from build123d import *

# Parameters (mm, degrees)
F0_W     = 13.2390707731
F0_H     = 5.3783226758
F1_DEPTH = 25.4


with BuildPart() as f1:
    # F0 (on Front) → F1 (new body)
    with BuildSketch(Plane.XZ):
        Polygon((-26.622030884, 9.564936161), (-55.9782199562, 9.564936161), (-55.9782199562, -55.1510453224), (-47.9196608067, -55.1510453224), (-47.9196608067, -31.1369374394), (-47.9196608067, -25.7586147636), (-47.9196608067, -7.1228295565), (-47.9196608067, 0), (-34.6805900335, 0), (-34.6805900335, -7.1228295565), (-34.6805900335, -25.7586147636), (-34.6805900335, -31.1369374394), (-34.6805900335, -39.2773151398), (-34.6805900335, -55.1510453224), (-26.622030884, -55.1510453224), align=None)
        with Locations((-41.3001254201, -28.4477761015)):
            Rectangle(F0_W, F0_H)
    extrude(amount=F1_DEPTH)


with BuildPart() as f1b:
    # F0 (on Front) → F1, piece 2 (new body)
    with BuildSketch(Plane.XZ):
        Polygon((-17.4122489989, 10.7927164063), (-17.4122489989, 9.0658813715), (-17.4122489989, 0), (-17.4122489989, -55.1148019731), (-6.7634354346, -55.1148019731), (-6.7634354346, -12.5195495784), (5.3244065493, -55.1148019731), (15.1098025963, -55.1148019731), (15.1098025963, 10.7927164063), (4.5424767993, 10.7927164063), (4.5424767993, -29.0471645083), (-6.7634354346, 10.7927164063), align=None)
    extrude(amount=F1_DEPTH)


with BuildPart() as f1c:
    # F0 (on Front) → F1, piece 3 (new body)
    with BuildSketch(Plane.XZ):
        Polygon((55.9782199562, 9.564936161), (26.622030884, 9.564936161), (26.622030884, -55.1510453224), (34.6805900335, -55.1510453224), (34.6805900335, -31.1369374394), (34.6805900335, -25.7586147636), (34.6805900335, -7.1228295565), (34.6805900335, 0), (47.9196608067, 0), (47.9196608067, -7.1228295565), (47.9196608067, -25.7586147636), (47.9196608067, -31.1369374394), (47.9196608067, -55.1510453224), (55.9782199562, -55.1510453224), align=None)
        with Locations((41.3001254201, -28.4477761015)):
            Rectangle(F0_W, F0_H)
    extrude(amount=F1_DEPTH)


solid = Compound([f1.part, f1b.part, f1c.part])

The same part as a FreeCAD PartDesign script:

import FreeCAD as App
import Part
import Sketcher

V = App.Vector
Q = App.Units.Quantity

doc = App.newDocument("Part")
params = doc.addObject("Spreadsheet::Sheet", "Params")
for row, (alias, value) in enumerate([
    ("pad1_length", "1 in"),
    ("pad2_length", "1 in"),
    ("pad3_length", "1 in"),
], start=1):
    params.set(f"A{row}", alias)
    params.set(f"B{row}", "=" + value)
    params.setAlias(f"B{row}", alias)

body = doc.addObject("PartDesign::Body", "Body")

sketch1 = body.newObject("Sketcher::SketchObject", "Sketch")
sketch1.AttachmentSupport = (doc.getObject("XZ_Plane"), [""])
sketch1.MapMode = "FlatFace"
sketch1.addGeometry([
    Part.LineSegment(V(-27, 10, 0), V(-56, 10, 0)),
    Part.LineSegment(V(-56, 10, 0), V(-56, -55, 0)),
    Part.LineSegment(V(-56, -55, 0), V(-48, -55, 0)),
    Part.LineSegment(V(-48, -55, 0), V(-48, -31, 0)),
    Part.LineSegment(V(-48, -31, 0), V(-35, -31, 0)),
    Part.LineSegment(V(-35, -31, 0), V(-35, -55, 0)),
    Part.LineSegment(V(-35, -55, 0), V(-27, -55, 0)),
    Part.LineSegment(V(-27, -55, 0), V(-27, 10, 0)),
    Part.LineSegment(V(-48, -26, 0), V(-48, 0, 0)),
    Part.LineSegment(V(-48, 0, 0), V(-35, 0, 0)),
    Part.LineSegment(V(-35, 0, 0), V(-35, -26, 0)),
    Part.LineSegment(V(-35, -26, 0), V(-48, -26, 0)),
], False)
sketch1.addConstraint([
    Sketcher.Constraint("Coincident", 0, 2, 1, 1),
    Sketcher.Constraint("Coincident", 1, 2, 2, 1),
    Sketcher.Constraint("Coincident", 2, 2, 3, 1),
    Sketcher.Constraint("Coincident", 3, 2, 4, 1),
    Sketcher.Constraint("Coincident", 4, 2, 5, 1),
    Sketcher.Constraint("Coincident", 5, 2, 6, 1),
    Sketcher.Constraint("Coincident", 6, 2, 7, 1),
    Sketcher.Constraint("Coincident", 7, 2, 0, 1),
    Sketcher.Constraint("Coincident", 8, 2, 9, 1),
    Sketcher.Constraint("Coincident", 9, 2, 10, 1),
    Sketcher.Constraint("Coincident", 10, 2, 11, 1),
    Sketcher.Constraint("Coincident", 11, 2, 8, 1),
    Sketcher.Constraint("Horizontal", 0),
    Sketcher.Constraint("Vertical", 1),
    Sketcher.Constraint("Horizontal", 2),
    Sketcher.Constraint("Vertical", 3),
    Sketcher.Constraint("Horizontal", 4),
    Sketcher.Constraint("Vertical", 5),
    Sketcher.Constraint("Horizontal", 6),
    Sketcher.Constraint("Vertical", 7),
    Sketcher.Constraint("Vertical", 8),
    Sketcher.Constraint("Horizontal", 9),
    Sketcher.Constraint("Vertical", 10),
    Sketcher.Constraint("Horizontal", 11),
    Sketcher.Constraint("PointOnObject", 8, 2, -1),
    Sketcher.Constraint("Horizontal", 2, 2, 5, 2),
    Sketcher.Constraint("Vertical", 3, 2, 8, 2),
    Sketcher.Constraint("Vertical", 5, 2, 9, 2),
    Sketcher.Constraint("Equal", 2, 6),
    Sketcher.Constraint("DistanceX", 0, 2, 0, 1, Q("29.356189 mm")),
    Sketcher.Constraint("DistanceX", 2, 1, 2, 2, Q("8.058559 mm")),
    Sketcher.Constraint("DistanceY", 1, 2, 1, 1, Q("64.715981 mm")),
    Sketcher.Constraint("DistanceY", 3, 1, 3, 2, Q("24.014108 mm")),
    Sketcher.Constraint("DistanceY", 8, 1, 8, 2, Q("25.758615 mm")),
    Sketcher.Constraint("DistanceX", 0, 2, -1, 1, Q("55.97822 mm")),
    Sketcher.Constraint("DistanceY", 5, 2, 10, 2, Q("29.392431 mm")),
])
pad1 = body.newObject("PartDesign::Pad", "Pad")
pad1.Profile = sketch1
pad1.setExpression("Length", "Params.pad1_length")
body2 = doc.addObject("PartDesign::Body", "Body001")

sketch2 = body2.newObject("Sketcher::SketchObject", "Sketch001")
sketch2.AttachmentSupport = (doc.getObject("XZ_Plane001"), [""])
sketch2.MapMode = "FlatFace"
sketch2.addGeometry([
    Part.LineSegment(V(-17, 11, 0), V(-17, -55, 0)),
    Part.LineSegment(V(-17, -55, 0), V(-7, -55, 0)),
    Part.LineSegment(V(-7, -55, 0), V(-7, -13, 0)),
    Part.LineSegment(V(-7, -13, 0), V(5, -55, 0)),
    Part.LineSegment(V(5, -55, 0), V(15, -55, 0)),
    Part.LineSegment(V(15, -55, 0), V(15, 11, 0)),
    Part.LineSegment(V(15, 11, 0), V(5, 11, 0)),
    Part.LineSegment(V(5, 11, 0), V(5, -29, 0)),
    Part.LineSegment(V(5, -29, 0), V(-7, 11, 0)),
    Part.LineSegment(V(-7, 11, 0), V(-17, 11, 0)),
], False)
sketch2.addConstraint([
    Sketcher.Constraint("Coincident", 0, 2, 1, 1),
    Sketcher.Constraint("Coincident", 1, 2, 2, 1),
    Sketcher.Constraint("Coincident", 2, 2, 3, 1),
    Sketcher.Constraint("Coincident", 3, 2, 4, 1),
    Sketcher.Constraint("Coincident", 4, 2, 5, 1),
    Sketcher.Constraint("Coincident", 5, 2, 6, 1),
    Sketcher.Constraint("Coincident", 6, 2, 7, 1),
    Sketcher.Constraint("Coincident", 7, 2, 8, 1),
    Sketcher.Constraint("Coincident", 8, 2, 9, 1),
    Sketcher.Constraint("Coincident", 9, 2, 0, 1),
    Sketcher.Constraint("Vertical", 0),
    Sketcher.Constraint("Horizontal", 1),
    Sketcher.Constraint("Vertical", 2),
    Sketcher.Constraint("Horizontal", 4),
    Sketcher.Constraint("Vertical", 5),
    Sketcher.Constraint("Horizontal", 6),
    Sketcher.Constraint("Vertical", 7),
    Sketcher.Constraint("Horizontal", 9),
    Sketcher.Constraint("Parallel", 3, 8),
    Sketcher.Constraint("Horizontal", 1, 2, 3, 2),
    Sketcher.Constraint("Horizontal", 6, 2, 8, 2),
    Sketcher.Constraint("Vertical", 2, 2, 8, 2),
    Sketcher.Constraint("DistanceY", 0, 2, 0, 1, Q("65.907518 mm")),
    Sketcher.Constraint("DistanceY", 7, 2, 7, 1, Q("39.839881 mm")),
    Sketcher.Constraint("DistanceY", 0, 2, -1, 1, Q("55.114802 mm")),
    Sketcher.Constraint("Distance", 3, Q("44.277211 mm")),
    Sketcher.Constraint("Distance", 8, Q("41.413039 mm")),
    Sketcher.Constraint("DistanceX", 1, 1, 1, 2, Q("10.648814 mm")),
    Sketcher.Constraint("DistanceX", 4, 1, 4, 2, Q("9.785396 mm")),
    Sketcher.Constraint("DistanceX", 0, 2, -1, 1, Q("17.412249 mm")),
])
pad2 = body2.newObject("PartDesign::Pad", "Pad001")
pad2.Profile = sketch2
pad2.setExpression("Length", "Params.pad2_length")
body3 = doc.addObject("PartDesign::Body", "Body002")

sketch3 = body3.newObject("Sketcher::SketchObject", "Sketch002")
sketch3.AttachmentSupport = (doc.getObject("XZ_Plane002"), [""])
sketch3.MapMode = "FlatFace"
sketch3.addGeometry([
    Part.LineSegment(V(56, 10, 0), V(27, 10, 0)),
    Part.LineSegment(V(27, 10, 0), V(27, -55, 0)),
    Part.LineSegment(V(27, -55, 0), V(35, -55, 0)),
    Part.LineSegment(V(35, -55, 0), V(35, -31, 0)),
    Part.LineSegment(V(35, -31, 0), V(48, -31, 0)),
    Part.LineSegment(V(48, -31, 0), V(48, -55, 0)),
    Part.LineSegment(V(48, -55, 0), V(56, -55, 0)),
    Part.LineSegment(V(56, -55, 0), V(56, 10, 0)),
    Part.LineSegment(V(35, -26, 0), V(35, 0, 0)),
    Part.LineSegment(V(35, 0, 0), V(48, 0, 0)),
    Part.LineSegment(V(48, 0, 0), V(48, -26, 0)),
    Part.LineSegment(V(48, -26, 0), V(35, -26, 0)),
], False)
sketch3.addConstraint([
    Sketcher.Constraint("Coincident", 0, 2, 1, 1),
    Sketcher.Constraint("Coincident", 1, 2, 2, 1),
    Sketcher.Constraint("Coincident", 2, 2, 3, 1),
    Sketcher.Constraint("Coincident", 3, 2, 4, 1),
    Sketcher.Constraint("Coincident", 4, 2, 5, 1),
    Sketcher.Constraint("Coincident", 5, 2, 6, 1),
    Sketcher.Constraint("Coincident", 6, 2, 7, 1),
    Sketcher.Constraint("Coincident", 7, 2, 0, 1),
    Sketcher.Constraint("Coincident", 8, 2, 9, 1),
    Sketcher.Constraint("Coincident", 9, 2, 10, 1),
    Sketcher.Constraint("Coincident", 10, 2, 11, 1),
    Sketcher.Constraint("Coincident", 11, 2, 8, 1),
    Sketcher.Constraint("Horizontal", 0),
    Sketcher.Constraint("Vertical", 1),
    Sketcher.Constraint("Horizontal", 2),
    Sketcher.Constraint("Vertical", 3),
    Sketcher.Constraint("Horizontal", 4),
    Sketcher.Constraint("Vertical", 5),
    Sketcher.Constraint("Horizontal", 6),
    Sketcher.Constraint("Vertical", 7),
    Sketcher.Constraint("Vertical", 8),
    Sketcher.Constraint("Horizontal", 9),
    Sketcher.Constraint("Vertical", 10),
    Sketcher.Constraint("Horizontal", 11),
    Sketcher.Constraint("PointOnObject", 8, 2, -1),
    Sketcher.Constraint("Horizontal", 2, 2, 5, 2),
    Sketcher.Constraint("Vertical", 3, 2, 8, 2),
    Sketcher.Constraint("Vertical", 5, 2, 9, 2),
    Sketcher.Constraint("Equal", 2, 6),
    Sketcher.Constraint("DistanceX", 0, 2, 0, 1, Q("29.356189 mm")),
    Sketcher.Constraint("DistanceX", 2, 1, 2, 2, Q("8.058559 mm")),
    Sketcher.Constraint("DistanceY", 1, 2, 1, 1, Q("64.715981 mm")),
    Sketcher.Constraint("DistanceY", 3, 1, 3, 2, Q("24.014108 mm")),
    Sketcher.Constraint("DistanceY", 8, 1, 8, 2, Q("25.758615 mm")),
    Sketcher.Constraint("DistanceX", -1, 1, 0, 2, Q("26.622031 mm")),
    Sketcher.Constraint("DistanceY", 5, 2, 10, 2, Q("29.392431 mm")),
])
pad3 = body3.newObject("PartDesign::Pad", "Pad002")
pad3.Profile = sketch3
pad3.setExpression("Length", "Params.pad3_length")

doc.recompute()
